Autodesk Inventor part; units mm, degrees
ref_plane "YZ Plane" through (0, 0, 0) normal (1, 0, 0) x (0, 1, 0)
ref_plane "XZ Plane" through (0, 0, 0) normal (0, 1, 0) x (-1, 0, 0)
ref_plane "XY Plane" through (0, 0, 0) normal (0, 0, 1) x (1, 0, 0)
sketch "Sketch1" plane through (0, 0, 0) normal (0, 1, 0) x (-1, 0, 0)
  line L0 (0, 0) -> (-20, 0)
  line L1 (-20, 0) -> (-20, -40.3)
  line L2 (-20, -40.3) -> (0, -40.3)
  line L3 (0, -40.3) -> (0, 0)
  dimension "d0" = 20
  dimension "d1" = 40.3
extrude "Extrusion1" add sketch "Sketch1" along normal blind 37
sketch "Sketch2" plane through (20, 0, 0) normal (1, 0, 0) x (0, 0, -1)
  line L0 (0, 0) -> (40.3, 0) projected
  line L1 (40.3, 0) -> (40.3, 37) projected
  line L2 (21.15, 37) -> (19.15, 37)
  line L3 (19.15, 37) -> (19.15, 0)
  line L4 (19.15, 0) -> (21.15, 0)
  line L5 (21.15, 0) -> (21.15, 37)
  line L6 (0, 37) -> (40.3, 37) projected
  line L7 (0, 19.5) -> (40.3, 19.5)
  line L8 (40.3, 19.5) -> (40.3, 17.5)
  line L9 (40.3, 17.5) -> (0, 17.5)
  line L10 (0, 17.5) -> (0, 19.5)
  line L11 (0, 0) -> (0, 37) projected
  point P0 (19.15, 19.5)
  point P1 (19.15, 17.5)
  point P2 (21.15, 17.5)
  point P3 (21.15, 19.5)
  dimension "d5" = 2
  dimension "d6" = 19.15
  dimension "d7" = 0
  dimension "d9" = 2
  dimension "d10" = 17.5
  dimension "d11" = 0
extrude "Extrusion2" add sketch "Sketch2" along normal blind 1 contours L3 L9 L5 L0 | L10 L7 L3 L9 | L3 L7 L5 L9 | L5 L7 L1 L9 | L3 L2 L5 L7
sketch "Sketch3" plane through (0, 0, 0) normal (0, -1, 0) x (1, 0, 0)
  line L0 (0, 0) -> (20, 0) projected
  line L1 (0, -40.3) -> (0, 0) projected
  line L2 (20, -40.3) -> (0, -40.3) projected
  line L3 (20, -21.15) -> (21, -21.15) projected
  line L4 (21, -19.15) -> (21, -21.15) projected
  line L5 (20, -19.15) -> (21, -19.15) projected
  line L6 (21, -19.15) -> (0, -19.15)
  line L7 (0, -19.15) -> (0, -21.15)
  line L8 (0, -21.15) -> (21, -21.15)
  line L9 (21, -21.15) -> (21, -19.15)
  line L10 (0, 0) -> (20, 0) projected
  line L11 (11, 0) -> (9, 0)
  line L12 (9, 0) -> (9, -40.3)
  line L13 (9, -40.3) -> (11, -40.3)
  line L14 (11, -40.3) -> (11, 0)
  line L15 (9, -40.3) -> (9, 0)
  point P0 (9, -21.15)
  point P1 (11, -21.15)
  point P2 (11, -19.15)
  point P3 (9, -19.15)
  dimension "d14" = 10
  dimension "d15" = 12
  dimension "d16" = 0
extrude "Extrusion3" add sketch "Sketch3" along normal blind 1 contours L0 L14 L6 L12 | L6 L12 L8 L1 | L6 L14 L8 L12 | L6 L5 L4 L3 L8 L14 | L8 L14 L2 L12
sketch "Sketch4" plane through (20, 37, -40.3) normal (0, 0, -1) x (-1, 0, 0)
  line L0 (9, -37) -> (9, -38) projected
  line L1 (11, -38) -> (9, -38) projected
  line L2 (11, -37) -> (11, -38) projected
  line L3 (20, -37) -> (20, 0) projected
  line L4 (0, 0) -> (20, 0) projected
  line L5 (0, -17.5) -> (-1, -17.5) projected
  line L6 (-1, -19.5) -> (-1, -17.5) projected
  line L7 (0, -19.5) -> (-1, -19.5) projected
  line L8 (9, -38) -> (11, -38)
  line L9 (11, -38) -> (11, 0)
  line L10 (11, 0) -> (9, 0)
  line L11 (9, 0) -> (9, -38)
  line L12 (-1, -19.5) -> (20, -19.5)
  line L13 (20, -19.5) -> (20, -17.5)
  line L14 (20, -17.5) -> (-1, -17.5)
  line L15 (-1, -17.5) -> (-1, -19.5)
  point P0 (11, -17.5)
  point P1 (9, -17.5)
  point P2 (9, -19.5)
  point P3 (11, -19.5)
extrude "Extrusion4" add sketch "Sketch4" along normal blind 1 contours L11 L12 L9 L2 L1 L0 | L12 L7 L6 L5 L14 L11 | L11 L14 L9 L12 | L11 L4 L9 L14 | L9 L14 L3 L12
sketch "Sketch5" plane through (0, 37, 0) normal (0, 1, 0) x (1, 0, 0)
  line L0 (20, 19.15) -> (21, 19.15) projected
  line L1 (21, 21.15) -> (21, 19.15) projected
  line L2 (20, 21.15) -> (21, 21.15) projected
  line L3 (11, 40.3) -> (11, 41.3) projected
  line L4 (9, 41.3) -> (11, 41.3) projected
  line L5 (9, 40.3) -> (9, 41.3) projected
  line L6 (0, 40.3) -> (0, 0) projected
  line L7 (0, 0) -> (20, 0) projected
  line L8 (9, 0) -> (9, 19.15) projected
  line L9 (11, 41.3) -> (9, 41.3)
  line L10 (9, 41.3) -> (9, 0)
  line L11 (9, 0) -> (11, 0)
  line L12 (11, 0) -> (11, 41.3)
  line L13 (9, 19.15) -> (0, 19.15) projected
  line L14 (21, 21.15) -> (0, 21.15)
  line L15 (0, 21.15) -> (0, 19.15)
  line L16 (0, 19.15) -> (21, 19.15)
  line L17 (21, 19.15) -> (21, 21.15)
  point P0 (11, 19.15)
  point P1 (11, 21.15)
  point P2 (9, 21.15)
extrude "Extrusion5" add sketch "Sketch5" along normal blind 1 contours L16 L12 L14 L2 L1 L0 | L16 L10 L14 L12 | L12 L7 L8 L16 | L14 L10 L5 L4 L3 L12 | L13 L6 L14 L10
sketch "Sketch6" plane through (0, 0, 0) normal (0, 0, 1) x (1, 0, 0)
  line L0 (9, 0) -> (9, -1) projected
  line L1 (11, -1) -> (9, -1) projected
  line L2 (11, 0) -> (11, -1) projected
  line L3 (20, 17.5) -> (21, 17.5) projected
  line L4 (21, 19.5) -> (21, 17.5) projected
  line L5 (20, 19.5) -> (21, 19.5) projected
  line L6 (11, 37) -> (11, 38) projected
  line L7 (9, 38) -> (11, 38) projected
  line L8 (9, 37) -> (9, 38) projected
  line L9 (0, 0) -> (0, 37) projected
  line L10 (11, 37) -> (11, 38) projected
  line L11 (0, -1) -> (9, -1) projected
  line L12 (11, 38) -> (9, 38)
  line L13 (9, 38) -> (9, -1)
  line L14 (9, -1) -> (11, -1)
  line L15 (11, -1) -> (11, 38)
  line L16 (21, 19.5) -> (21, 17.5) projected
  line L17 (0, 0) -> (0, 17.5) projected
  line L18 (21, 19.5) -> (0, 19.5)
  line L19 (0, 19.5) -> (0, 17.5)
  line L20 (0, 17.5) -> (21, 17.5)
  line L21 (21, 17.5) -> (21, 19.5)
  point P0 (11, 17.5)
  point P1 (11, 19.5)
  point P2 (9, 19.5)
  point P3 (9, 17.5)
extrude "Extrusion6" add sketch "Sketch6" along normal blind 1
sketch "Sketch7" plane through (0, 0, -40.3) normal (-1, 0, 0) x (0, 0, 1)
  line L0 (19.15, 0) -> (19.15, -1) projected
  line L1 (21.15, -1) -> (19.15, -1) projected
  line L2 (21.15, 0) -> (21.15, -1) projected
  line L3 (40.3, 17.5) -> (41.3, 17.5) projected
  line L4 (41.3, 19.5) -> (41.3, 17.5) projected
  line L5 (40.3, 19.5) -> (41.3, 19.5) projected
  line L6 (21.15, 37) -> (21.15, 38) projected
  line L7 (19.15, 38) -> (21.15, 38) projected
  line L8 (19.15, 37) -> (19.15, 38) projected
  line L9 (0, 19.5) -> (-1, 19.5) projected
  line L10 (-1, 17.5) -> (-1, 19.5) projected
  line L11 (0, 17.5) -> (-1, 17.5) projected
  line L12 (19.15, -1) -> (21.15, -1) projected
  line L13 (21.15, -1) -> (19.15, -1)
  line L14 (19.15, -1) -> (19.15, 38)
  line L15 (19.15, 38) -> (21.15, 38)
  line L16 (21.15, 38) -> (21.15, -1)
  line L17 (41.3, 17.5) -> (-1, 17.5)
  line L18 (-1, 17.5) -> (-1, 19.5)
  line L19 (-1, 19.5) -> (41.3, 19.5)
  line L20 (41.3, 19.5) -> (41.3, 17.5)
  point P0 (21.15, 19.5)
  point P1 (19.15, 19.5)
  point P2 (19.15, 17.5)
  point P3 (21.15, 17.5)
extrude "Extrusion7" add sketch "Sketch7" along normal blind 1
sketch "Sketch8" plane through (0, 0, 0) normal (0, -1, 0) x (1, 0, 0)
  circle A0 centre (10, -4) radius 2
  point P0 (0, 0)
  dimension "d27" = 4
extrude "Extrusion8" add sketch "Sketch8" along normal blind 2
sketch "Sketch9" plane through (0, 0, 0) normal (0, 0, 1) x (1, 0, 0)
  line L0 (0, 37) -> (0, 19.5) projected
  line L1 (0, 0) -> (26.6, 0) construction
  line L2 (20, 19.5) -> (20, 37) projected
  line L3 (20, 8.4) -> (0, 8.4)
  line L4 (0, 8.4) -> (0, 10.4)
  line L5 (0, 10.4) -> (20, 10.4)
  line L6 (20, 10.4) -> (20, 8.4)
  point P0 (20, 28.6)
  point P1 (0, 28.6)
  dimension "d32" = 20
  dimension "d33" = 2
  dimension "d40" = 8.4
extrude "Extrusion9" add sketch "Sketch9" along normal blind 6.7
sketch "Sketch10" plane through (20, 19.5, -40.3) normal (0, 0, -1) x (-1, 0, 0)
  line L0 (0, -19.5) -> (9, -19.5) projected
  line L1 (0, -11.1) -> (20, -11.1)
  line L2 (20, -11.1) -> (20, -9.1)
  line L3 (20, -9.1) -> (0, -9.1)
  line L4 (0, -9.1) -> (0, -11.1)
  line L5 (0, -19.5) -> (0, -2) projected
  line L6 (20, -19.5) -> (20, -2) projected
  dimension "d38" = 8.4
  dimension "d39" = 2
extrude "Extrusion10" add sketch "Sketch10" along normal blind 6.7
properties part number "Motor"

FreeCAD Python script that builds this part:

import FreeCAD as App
import Part
import Sketcher
Q = App.Units.Quantity


def add_polygon(sketch, points):
    """Adds a closed chain of lines whose ends are joined by coincident constraints."""
    first, n = sketch.GeometryCount, len(points)
    for a, b in zip(points, points[1:] + points[:1]):
        sketch.addGeometry(Part.LineSegment(App.Vector(*a, 0), App.Vector(*b, 0)), False)
    for i in range(n):
        sketch.addConstraint(Sketcher.Constraint("Coincident", first + i, 2, first + (i + 1) % n, 1))

doc = App.newDocument("Part")
body = doc.addObject("PartDesign::Body", "Body")

sketch1 = body.newObject("Sketcher::SketchObject", "Sketch")
sketch1.AttachmentSupport = (doc.getObject("XZ_Plane"), [""])
sketch1.MapMode = "FlatFace"
add_polygon(sketch1, [(0, -40.3), (0, 0), (20, 0), (20, -40.3)])
sketch1.addConstraint([
    Sketcher.Constraint("Vertical", 0),
    Sketcher.Constraint("Horizontal", 1),
    Sketcher.Constraint("Vertical", 2),
    Sketcher.Constraint("Horizontal", 3),
    Sketcher.Constraint("Coincident", 0, 2, -1, 1),
    Sketcher.Constraint("DistanceX", 1, 1, 1, 2, Q("20 mm")),
    Sketcher.Constraint("DistanceY", 0, 1, 0, 2, Q("40.3 mm")),
])
pad1 = body.newObject("PartDesign::Pad", "Pad")
pad1.Profile = sketch1
pad1.Length = 37
pad1.Reversed = True

sketch2 = body.newObject("Sketcher::SketchObject", "Sketch001")
sketch2.AttachmentSupport = (doc.getObject("YZ_Plane"), [""])
sketch2.MapMode = "FlatFace"
sketch2.AttachmentOffset = App.Placement(App.Vector(0, 0, 20), App.Rotation())
add_polygon(sketch2, [(17.5, -19.15), (0, -19.15), (0, -21.15), (17.5, -21.15), (17.5, -40.3), (19.5, -40.3), (19.5, -21.15), (37, -21.15), (37, -19.15), (19.5, -19.15), (19.5, 0), (17.5, 0)])
sketch2.addConstraint([
    Sketcher.Constraint("Horizontal", 0),
    Sketcher.Constraint("Vertical", 1),
    Sketcher.Constraint("Horizontal", 2),
    Sketcher.Constraint("Vertical", 3),
    Sketcher.Constraint("Horizontal", 4),
    Sketcher.Constraint("Vertical", 5),
    Sketcher.Constraint("Horizontal", 6),
    Sketcher.Constraint("Vertical", 7),
    Sketcher.Constraint("Horizontal", 8),
    Sketcher.Constraint("Vertical", 9),
    Sketcher.Constraint("Horizontal", 10),
    Sketcher.Constraint("Vertical", 11),
    Sketcher.Constraint("PointOnObject", 0, 2, -2),
    Sketcher.Constraint("PointOnObject", 9, 2, -1),
    Sketcher.Constraint("Horizontal", 2, 2, 5, 2),
    Sketcher.Constraint("Horizontal", 0, 2, 7, 2),
    Sketcher.Constraint("Vertical", 5, 2, 8, 2),
    Sketcher.Constraint("Vertical", 3, 2, 10, 2),
    Sketcher.Constraint("Equal", 2, 6),
    Sketcher.Constraint("Equal", 10, 1),
    Sketcher.Constraint("Equal", 5, 9),
    Sketcher.Constraint("DistanceX", 4, 1, 4, 2, Q("2 mm")),
    Sketcher.Constraint("DistanceX", 0, 2, 0, 1, Q("17.5 mm")),
    Sketcher.Constraint("DistanceY", 3, 2, 3, 1, Q("19.15 mm")),
])
pad2 = body.newObject("PartDesign::Pad", "Pad001")
pad2.Profile = sketch2
pad2.Length = 1

sketch3 = body.newObject("Sketcher::SketchObject", "Sketch002")
sketch3.AttachmentSupport = (doc.getObject("XZ_Plane"), [""])
sketch3.MapMode = "FlatFace"
add_polygon(sketch3, [(11, 0), (9, 0), (9, -19.15), (0, -19.15), (0, -21.15), (9, -21.15), (9, -40.3), (11, -40.3), (11, -21.15), (21, -21.15), (21, -19.15), (11, -19.15)])
sketch3.addConstraint([
    Sketcher.Constraint("Horizontal", 0),
    Sketcher.Constraint("Vertical", 1),
    Sketcher.Constraint("Horizontal", 2),
    Sketcher.Constraint("Vertical", 3),
    Sketcher.Constraint("Horizontal", 4),
    Sketcher.Constraint("Vertical", 5),
    Sketcher.Constraint("Horizontal", 6),
    Sketcher.Constraint("Vertical", 7),
    Sketcher.Constraint("Horizontal", 8),
    Sketcher.Constraint("Vertical", 9),
    Sketcher.Constraint("Horizontal", 10),
    Sketcher.Constraint("Vertical", 11),
    Sketcher.Constraint("PointOnObject", 0, 2, -1),
    Sketcher.Constraint("PointOnObject", 2, 2, -2),
    Sketcher.Constraint("Horizontal", 4, 2, 7, 2),
    Sketcher.Constraint("Horizontal", 2, 2, 9, 2),
    Sketcher.Constraint("Vertical", 1, 2, 4, 2),
    Sketcher.Constraint("Vertical", 7, 2, 10, 2),
    Sketcher.Constraint("Equal", 6, 3),
    Sketcher.Constraint("Equal", 1, 5),
    Sketcher.Constraint("DistanceX", 8, 1, 8, 2, Q("10 mm")),
    Sketcher.Constraint("DistanceX", 4, 2, 8, 2, Q("12 mm")),
    Sketcher.Constraint("DistanceX", 2, 2, 2, 1, Q("9 mm")),
    Sketcher.Constraint("DistanceY", 1, 2, 1, 1, Q("19.15 mm")),
])
pad3 = body.newObject("PartDesign::Pad", "Pad002")
pad3.Profile = sketch3
pad3.Length = 1

sketch4 = body.newObject("Sketcher::SketchObject", "Sketch003")
sketch4.AttachmentSupport = (doc.getObject("XY_Plane"), [""])
sketch4.MapMode = "FlatFace"
sketch4.AttachmentOffset = App.Placement(App.Vector(0, 0, -40.3), App.Rotation())
add_polygon(sketch4, [(11, 17.5), (11, -1), (9, -1), (9, 17.5), (0, 17.5), (0, 19.5), (9, 19.5), (9, 37), (11, 37), (11, 19.5), (21, 19.5), (21, 17.5)])
sketch4.addConstraint([
    Sketcher.Constraint("Vertical", 0),
    Sketcher.Constraint("Horizontal", 1),
    Sketcher.Constraint("Vertical", 2),
    Sketcher.Constraint("Horizontal", 3),
    Sketcher.Constraint("Vertical", 4),
    Sketcher.Constraint("Horizontal", 5),
    Sketcher.Constraint("Vertical", 6),
    Sketcher.Constraint("Horizontal", 7),
    Sketcher.Constraint("Vertical", 8),
    Sketcher.Constraint("Horizontal", 9),
    Sketcher.Constraint("Vertical", 10),
    Sketcher.Constraint("Horizontal", 11),
    Sketcher.Constraint("PointOnObject", 3, 2, -2),
    Sketcher.Constraint("Horizontal", 5, 2, 8, 2),
    Sketcher.Constraint("Horizontal", 3, 2, 10, 2),
    Sketcher.Constraint("Vertical", 2, 2, 5, 2),
    Sketcher.Constraint("Vertical", 0, 2, 7, 2),
    Sketcher.Constraint("Equal", 7, 4),
    Sketcher.Constraint("DistanceX", 1, 2, 1, 1, Q("2 mm")),
    Sketcher.Constraint("DistanceX", 3, 2, 3, 1, Q("9 mm")),
    Sketcher.Constraint("DistanceX", 9, 1, 9, 2, Q("10 mm")),
    Sketcher.Constraint("DistanceY", 0, 2, 0, 1, Q("18.5 mm")),
    Sketcher.Constraint("DistanceY", 6, 1, 6, 2, Q("17.5 mm")),
    Sketcher.Constraint("DistanceY", 0, 2, -1, 1, Q("1 mm")),
])
pad4 = body.newObject("PartDesign::Pad", "Pad003")
pad4.Profile = sketch4
pad4.Length = 1
pad4.Reversed = True

sketch5 = body.newObject("Sketcher::SketchObject", "Sketch004")
sketch5.AttachmentSupport = (doc.getObject("XZ_Plane"), [""])
sketch5.MapMode = "FlatFace"
sketch5.AttachmentOffset = App.Placement(App.Vector(0, 0, -37), App.Rotation())
add_polygon(sketch5, [(11, -19.15), (21, -19.15), (21, -21.15), (11, -21.15), (11, -41.3), (9, -41.3), (9, -21.15), (0, -21.15), (0, -19.15), (9, -19.15), (9, 0), (11, 0)])
sketch5.addConstraint([
    Sketcher.Constraint("Horizontal", 0),
    Sketcher.Constraint("Vertical", 1),
    Sketcher.Constraint("Horizontal", 2),
    Sketcher.Constraint("Vertical", 3),
    Sketcher.Constraint("Horizontal", 4),
    Sketcher.Constraint("Vertical", 5),
    Sketcher.Constraint("Horizontal", 6),
    Sketcher.Constraint("Vertical", 7),
    Sketcher.Constraint("Horizontal", 8),
    Sketcher.Constraint("Vertical", 9),
    Sketcher.Constraint("Horizontal", 10),
    Sketcher.Constraint("Vertical", 11),
    Sketcher.Constraint("PointOnObject", 6, 2, -2),
    Sketcher.Constraint("PointOnObject", 9, 2, -1),
    Sketcher.Constraint("Horizontal", 2, 2, 5, 2),
    Sketcher.Constraint("Horizontal", 0, 2, 7, 2),
    Sketcher.Constraint("Vertical", 5, 2, 8, 2),
    Sketcher.Constraint("Vertical", 3, 2, 10, 2),
    Sketcher.Constraint("Equal", 10, 1),
    Sketcher.Constraint("DistanceX", 0, 1, 0, 2, Q("10 mm")),
    Sketcher.Constraint("DistanceX", 4, 2, 4, 1, Q("2 mm")),
    Sketcher.Constraint("DistanceX", 6, 2, 6, 1, Q("9 mm")),
    Sketcher.Constraint("DistanceY", 3, 2, 3, 1, Q("20.15 mm")),
    Sketcher.Constraint("DistanceY", 9, 1, 9, 2, Q("19.15 mm")),
])
pad5 = body.newObject("PartDesign::Pad", "Pad004")
pad5.Profile = sketch5
pad5.Length = 1
pad5.Reversed = True

sketch6 = body.newObject("Sketcher::SketchObject", "Sketch005")
sketch6.AttachmentSupport = (doc.getObject("XY_Plane"), [""])
sketch6.MapMode = "FlatFace"
add_polygon(sketch6, [(9, 17.5), (9, -1), (11, -1), (11, 17.5), (21, 17.5), (21, 19.5), (11, 19.5), (11, 38), (9, 38), (9, 19.5), (0, 19.5), (0, 17.5)])
sketch6.addConstraint([
    Sketcher.Constraint("Vertical", 0),
    Sketcher.Constraint("Horizontal", 1),
    Sketcher.Constraint("Vertical", 2),
    Sketcher.Constraint("Horizontal", 3),
    Sketcher.Constraint("Vertical", 4),
    Sketcher.Constraint("Horizontal", 5),
    Sketcher.Constraint("Vertical", 6),
    Sketcher.Constraint("Horizontal", 7),
    Sketcher.Constraint("Vertical", 8),
    Sketcher.Constraint("Horizontal", 9),
    Sketcher.Constraint("Vertical", 10),
    Sketcher.Constraint("Horizontal", 11),
    Sketcher.Constraint("PointOnObject", 9, 2, -2),
    Sketcher.Constraint("Horizontal", 5, 2, 8, 2),
    Sketcher.Constraint("Horizontal", 3, 2, 10, 2),
    Sketcher.Constraint("Vertical", 2, 2, 5, 2),
    Sketcher.Constraint("Vertical", 0, 2, 7, 2),
    Sketcher.Constraint("Equal", 7, 4),
    Sketcher.Constraint("Equal", 2, 6),
    Sketcher.Constraint("DistanceX", 1, 1, 1, 2, Q("2 mm")),
    Sketcher.Constraint("DistanceX", 3, 1, 3, 2, Q("10 mm")),
    Sketcher.Constraint("DistanceX", 9, 2, 9, 1, Q("9 mm")),
    Sketcher.Constraint("DistanceY", 0, 2, 0, 1, Q("18.5 mm")),
    Sketcher.Constraint("DistanceY", 0, 2, -1, 1, Q("1 mm")),
])
pad6 = body.newObject("PartDesign::Pad", "Pad005")
pad6.Profile = sketch6
pad6.Length = 1

sketch7 = body.newObject("Sketcher::SketchObject", "Sketch006")
sketch7.AttachmentSupport = (doc.getObject("YZ_Plane"), [""])
sketch7.MapMode = "FlatFace"
add_polygon(sketch7, [(17.5, -21.15), (-1, -21.15), (-1, -19.15), (17.5, -19.15), (17.5, 1), (19.5, 1), (19.5, -19.15), (38, -19.15), (38, -21.15), (19.5, -21.15), (19.5, -41.3), (17.5, -41.3)])
sketch7.addConstraint([
    Sketcher.Constraint("Horizontal", 0),
    Sketcher.Constraint("Vertical", 1),
    Sketcher.Constraint("Horizontal", 2),
    Sketcher.Constraint("Vertical", 3),
    Sketcher.Constraint("Horizontal", 4),
    Sketcher.Constraint("Vertical", 5),
    Sketcher.Constraint("Horizontal", 6),
    Sketcher.Constraint("Vertical", 7),
    Sketcher.Constraint("Horizontal", 8),
    Sketcher.Constraint("Vertical", 9),
    Sketcher.Constraint("Horizontal", 10),
    Sketcher.Constraint("Vertical", 11),
    Sketcher.Constraint("Horizontal", 2, 2, 5, 2),
    Sketcher.Constraint("Horizontal", 0, 2, 7, 2),
    Sketcher.Constraint("Vertical", 5, 2, 8, 2),
    Sketcher.Constraint("Vertical", 3, 2, 10, 2),
    Sketcher.Constraint("Equal", 2, 6),
    Sketcher.Constraint("Equal", 10, 1),
    Sketcher.Constraint("Equal", 5, 9),
    Sketcher.Constraint("DistanceX", 4, 1, 4, 2, Q("2 mm")),
    Sketcher.Constraint("DistanceX", 0, 2, 0, 1, Q("18.5 mm")),
    Sketcher.Constraint("DistanceX", 0, 2, -1, 1, Q("1 mm")),
    Sketcher.Constraint("DistanceY", -1, 1, 3, 2, Q("1 mm")),
    Sketcher.Constraint("DistanceY", 3, 1, 3, 2, Q("20.15 mm")),
])
pad7 = body.newObject("PartDesign::Pad", "Pad006")
pad7.Profile = sketch7
pad7.Length = 1
pad7.Reversed = True

sketch8 = body.newObject("Sketcher::SketchObject", "Sketch007")
sketch8.AttachmentSupport = (doc.getObject("XZ_Plane"), [""])
sketch8.MapMode = "FlatFace"
sketch8.addGeometry(Part.Circle(App.Vector(10, -4, 0), App.Vector(0, 0, 1), 2), False)
sketch8.addConstraint([
    Sketcher.Constraint("Diameter", 0, Q("4 mm")),
    Sketcher.Constraint("DistanceY", 0, 3, -1, 1, Q("4 mm")),
    Sketcher.Constraint("DistanceX", -1, 1, 0, 3, Q("10 mm")),
])
pad8 = body.newObject("PartDesign::Pad", "Pad007")
pad8.Profile = sketch8
pad8.Length = 2

sketch9 = body.newObject("Sketcher::SketchObject", "Sketch008")
sketch9.AttachmentSupport = (doc.getObject("XY_Plane"), [""])
sketch9.MapMode = "FlatFace"
add_polygon(sketch9, [(0, 8.4), (20, 8.4), (20, 10.4), (0, 10.4)])
sketch9.addConstraint([
    Sketcher.Constraint("Horizontal", 0),
    Sketcher.Constraint("Vertical", 1),
    Sketcher.Constraint("Horizontal", 2),
    Sketcher.Constraint("Vertical", 3),
    Sketcher.Constraint("PointOnObject", 2, 2, -2),
    Sketcher.Constraint("DistanceX", 0, 1, 0, 2, Q("20 mm")),
    Sketcher.Constraint("DistanceY", 1, 1, 1, 2, Q("2 mm")),
    Sketcher.Constraint("DistanceY", -1, 1, 0, 2, Q("8.4 mm")),
])
pad9 = body.newObject("PartDesign::Pad", "Pad008")
pad9.Profile = sketch9
pad9.Length = 6.7

sketch10 = body.newObject("Sketcher::SketchObject", "Sketch009")
sketch10.AttachmentSupport = (doc.getObject("XY_Plane"), [""])
sketch10.MapMode = "FlatFace"
sketch10.AttachmentOffset = App.Placement(App.Vector(0, 0, -40.3), App.Rotation())
add_polygon(sketch10, [(20, 10.4), (20, 8.4), (0, 8.4), (0, 10.4)])
sketch10.addConstraint([
    Sketcher.Constraint("Vertical", 0),
    Sketcher.Constraint("Horizontal", 1),
    Sketcher.Constraint("Vertical", 2),
    Sketcher.Constraint("Horizontal", 3),
    Sketcher.Constraint("PointOnObject", 1, 2, -2),
    Sketcher.Constraint("DistanceY", 0, 2, 0, 1, Q("2 mm")),
    Sketcher.Constraint("DistanceY", -1, 1, 0, 2, Q("8.4 mm")),
    Sketcher.Constraint("DistanceX", 1, 2, 1, 1, Q("20 mm")),
])
pad10 = body.newObject("PartDesign::Pad", "Pad009")
pad10.Profile = sketch10
pad10.Length = 6.7
pad10.Reversed = True

doc.recompute()
